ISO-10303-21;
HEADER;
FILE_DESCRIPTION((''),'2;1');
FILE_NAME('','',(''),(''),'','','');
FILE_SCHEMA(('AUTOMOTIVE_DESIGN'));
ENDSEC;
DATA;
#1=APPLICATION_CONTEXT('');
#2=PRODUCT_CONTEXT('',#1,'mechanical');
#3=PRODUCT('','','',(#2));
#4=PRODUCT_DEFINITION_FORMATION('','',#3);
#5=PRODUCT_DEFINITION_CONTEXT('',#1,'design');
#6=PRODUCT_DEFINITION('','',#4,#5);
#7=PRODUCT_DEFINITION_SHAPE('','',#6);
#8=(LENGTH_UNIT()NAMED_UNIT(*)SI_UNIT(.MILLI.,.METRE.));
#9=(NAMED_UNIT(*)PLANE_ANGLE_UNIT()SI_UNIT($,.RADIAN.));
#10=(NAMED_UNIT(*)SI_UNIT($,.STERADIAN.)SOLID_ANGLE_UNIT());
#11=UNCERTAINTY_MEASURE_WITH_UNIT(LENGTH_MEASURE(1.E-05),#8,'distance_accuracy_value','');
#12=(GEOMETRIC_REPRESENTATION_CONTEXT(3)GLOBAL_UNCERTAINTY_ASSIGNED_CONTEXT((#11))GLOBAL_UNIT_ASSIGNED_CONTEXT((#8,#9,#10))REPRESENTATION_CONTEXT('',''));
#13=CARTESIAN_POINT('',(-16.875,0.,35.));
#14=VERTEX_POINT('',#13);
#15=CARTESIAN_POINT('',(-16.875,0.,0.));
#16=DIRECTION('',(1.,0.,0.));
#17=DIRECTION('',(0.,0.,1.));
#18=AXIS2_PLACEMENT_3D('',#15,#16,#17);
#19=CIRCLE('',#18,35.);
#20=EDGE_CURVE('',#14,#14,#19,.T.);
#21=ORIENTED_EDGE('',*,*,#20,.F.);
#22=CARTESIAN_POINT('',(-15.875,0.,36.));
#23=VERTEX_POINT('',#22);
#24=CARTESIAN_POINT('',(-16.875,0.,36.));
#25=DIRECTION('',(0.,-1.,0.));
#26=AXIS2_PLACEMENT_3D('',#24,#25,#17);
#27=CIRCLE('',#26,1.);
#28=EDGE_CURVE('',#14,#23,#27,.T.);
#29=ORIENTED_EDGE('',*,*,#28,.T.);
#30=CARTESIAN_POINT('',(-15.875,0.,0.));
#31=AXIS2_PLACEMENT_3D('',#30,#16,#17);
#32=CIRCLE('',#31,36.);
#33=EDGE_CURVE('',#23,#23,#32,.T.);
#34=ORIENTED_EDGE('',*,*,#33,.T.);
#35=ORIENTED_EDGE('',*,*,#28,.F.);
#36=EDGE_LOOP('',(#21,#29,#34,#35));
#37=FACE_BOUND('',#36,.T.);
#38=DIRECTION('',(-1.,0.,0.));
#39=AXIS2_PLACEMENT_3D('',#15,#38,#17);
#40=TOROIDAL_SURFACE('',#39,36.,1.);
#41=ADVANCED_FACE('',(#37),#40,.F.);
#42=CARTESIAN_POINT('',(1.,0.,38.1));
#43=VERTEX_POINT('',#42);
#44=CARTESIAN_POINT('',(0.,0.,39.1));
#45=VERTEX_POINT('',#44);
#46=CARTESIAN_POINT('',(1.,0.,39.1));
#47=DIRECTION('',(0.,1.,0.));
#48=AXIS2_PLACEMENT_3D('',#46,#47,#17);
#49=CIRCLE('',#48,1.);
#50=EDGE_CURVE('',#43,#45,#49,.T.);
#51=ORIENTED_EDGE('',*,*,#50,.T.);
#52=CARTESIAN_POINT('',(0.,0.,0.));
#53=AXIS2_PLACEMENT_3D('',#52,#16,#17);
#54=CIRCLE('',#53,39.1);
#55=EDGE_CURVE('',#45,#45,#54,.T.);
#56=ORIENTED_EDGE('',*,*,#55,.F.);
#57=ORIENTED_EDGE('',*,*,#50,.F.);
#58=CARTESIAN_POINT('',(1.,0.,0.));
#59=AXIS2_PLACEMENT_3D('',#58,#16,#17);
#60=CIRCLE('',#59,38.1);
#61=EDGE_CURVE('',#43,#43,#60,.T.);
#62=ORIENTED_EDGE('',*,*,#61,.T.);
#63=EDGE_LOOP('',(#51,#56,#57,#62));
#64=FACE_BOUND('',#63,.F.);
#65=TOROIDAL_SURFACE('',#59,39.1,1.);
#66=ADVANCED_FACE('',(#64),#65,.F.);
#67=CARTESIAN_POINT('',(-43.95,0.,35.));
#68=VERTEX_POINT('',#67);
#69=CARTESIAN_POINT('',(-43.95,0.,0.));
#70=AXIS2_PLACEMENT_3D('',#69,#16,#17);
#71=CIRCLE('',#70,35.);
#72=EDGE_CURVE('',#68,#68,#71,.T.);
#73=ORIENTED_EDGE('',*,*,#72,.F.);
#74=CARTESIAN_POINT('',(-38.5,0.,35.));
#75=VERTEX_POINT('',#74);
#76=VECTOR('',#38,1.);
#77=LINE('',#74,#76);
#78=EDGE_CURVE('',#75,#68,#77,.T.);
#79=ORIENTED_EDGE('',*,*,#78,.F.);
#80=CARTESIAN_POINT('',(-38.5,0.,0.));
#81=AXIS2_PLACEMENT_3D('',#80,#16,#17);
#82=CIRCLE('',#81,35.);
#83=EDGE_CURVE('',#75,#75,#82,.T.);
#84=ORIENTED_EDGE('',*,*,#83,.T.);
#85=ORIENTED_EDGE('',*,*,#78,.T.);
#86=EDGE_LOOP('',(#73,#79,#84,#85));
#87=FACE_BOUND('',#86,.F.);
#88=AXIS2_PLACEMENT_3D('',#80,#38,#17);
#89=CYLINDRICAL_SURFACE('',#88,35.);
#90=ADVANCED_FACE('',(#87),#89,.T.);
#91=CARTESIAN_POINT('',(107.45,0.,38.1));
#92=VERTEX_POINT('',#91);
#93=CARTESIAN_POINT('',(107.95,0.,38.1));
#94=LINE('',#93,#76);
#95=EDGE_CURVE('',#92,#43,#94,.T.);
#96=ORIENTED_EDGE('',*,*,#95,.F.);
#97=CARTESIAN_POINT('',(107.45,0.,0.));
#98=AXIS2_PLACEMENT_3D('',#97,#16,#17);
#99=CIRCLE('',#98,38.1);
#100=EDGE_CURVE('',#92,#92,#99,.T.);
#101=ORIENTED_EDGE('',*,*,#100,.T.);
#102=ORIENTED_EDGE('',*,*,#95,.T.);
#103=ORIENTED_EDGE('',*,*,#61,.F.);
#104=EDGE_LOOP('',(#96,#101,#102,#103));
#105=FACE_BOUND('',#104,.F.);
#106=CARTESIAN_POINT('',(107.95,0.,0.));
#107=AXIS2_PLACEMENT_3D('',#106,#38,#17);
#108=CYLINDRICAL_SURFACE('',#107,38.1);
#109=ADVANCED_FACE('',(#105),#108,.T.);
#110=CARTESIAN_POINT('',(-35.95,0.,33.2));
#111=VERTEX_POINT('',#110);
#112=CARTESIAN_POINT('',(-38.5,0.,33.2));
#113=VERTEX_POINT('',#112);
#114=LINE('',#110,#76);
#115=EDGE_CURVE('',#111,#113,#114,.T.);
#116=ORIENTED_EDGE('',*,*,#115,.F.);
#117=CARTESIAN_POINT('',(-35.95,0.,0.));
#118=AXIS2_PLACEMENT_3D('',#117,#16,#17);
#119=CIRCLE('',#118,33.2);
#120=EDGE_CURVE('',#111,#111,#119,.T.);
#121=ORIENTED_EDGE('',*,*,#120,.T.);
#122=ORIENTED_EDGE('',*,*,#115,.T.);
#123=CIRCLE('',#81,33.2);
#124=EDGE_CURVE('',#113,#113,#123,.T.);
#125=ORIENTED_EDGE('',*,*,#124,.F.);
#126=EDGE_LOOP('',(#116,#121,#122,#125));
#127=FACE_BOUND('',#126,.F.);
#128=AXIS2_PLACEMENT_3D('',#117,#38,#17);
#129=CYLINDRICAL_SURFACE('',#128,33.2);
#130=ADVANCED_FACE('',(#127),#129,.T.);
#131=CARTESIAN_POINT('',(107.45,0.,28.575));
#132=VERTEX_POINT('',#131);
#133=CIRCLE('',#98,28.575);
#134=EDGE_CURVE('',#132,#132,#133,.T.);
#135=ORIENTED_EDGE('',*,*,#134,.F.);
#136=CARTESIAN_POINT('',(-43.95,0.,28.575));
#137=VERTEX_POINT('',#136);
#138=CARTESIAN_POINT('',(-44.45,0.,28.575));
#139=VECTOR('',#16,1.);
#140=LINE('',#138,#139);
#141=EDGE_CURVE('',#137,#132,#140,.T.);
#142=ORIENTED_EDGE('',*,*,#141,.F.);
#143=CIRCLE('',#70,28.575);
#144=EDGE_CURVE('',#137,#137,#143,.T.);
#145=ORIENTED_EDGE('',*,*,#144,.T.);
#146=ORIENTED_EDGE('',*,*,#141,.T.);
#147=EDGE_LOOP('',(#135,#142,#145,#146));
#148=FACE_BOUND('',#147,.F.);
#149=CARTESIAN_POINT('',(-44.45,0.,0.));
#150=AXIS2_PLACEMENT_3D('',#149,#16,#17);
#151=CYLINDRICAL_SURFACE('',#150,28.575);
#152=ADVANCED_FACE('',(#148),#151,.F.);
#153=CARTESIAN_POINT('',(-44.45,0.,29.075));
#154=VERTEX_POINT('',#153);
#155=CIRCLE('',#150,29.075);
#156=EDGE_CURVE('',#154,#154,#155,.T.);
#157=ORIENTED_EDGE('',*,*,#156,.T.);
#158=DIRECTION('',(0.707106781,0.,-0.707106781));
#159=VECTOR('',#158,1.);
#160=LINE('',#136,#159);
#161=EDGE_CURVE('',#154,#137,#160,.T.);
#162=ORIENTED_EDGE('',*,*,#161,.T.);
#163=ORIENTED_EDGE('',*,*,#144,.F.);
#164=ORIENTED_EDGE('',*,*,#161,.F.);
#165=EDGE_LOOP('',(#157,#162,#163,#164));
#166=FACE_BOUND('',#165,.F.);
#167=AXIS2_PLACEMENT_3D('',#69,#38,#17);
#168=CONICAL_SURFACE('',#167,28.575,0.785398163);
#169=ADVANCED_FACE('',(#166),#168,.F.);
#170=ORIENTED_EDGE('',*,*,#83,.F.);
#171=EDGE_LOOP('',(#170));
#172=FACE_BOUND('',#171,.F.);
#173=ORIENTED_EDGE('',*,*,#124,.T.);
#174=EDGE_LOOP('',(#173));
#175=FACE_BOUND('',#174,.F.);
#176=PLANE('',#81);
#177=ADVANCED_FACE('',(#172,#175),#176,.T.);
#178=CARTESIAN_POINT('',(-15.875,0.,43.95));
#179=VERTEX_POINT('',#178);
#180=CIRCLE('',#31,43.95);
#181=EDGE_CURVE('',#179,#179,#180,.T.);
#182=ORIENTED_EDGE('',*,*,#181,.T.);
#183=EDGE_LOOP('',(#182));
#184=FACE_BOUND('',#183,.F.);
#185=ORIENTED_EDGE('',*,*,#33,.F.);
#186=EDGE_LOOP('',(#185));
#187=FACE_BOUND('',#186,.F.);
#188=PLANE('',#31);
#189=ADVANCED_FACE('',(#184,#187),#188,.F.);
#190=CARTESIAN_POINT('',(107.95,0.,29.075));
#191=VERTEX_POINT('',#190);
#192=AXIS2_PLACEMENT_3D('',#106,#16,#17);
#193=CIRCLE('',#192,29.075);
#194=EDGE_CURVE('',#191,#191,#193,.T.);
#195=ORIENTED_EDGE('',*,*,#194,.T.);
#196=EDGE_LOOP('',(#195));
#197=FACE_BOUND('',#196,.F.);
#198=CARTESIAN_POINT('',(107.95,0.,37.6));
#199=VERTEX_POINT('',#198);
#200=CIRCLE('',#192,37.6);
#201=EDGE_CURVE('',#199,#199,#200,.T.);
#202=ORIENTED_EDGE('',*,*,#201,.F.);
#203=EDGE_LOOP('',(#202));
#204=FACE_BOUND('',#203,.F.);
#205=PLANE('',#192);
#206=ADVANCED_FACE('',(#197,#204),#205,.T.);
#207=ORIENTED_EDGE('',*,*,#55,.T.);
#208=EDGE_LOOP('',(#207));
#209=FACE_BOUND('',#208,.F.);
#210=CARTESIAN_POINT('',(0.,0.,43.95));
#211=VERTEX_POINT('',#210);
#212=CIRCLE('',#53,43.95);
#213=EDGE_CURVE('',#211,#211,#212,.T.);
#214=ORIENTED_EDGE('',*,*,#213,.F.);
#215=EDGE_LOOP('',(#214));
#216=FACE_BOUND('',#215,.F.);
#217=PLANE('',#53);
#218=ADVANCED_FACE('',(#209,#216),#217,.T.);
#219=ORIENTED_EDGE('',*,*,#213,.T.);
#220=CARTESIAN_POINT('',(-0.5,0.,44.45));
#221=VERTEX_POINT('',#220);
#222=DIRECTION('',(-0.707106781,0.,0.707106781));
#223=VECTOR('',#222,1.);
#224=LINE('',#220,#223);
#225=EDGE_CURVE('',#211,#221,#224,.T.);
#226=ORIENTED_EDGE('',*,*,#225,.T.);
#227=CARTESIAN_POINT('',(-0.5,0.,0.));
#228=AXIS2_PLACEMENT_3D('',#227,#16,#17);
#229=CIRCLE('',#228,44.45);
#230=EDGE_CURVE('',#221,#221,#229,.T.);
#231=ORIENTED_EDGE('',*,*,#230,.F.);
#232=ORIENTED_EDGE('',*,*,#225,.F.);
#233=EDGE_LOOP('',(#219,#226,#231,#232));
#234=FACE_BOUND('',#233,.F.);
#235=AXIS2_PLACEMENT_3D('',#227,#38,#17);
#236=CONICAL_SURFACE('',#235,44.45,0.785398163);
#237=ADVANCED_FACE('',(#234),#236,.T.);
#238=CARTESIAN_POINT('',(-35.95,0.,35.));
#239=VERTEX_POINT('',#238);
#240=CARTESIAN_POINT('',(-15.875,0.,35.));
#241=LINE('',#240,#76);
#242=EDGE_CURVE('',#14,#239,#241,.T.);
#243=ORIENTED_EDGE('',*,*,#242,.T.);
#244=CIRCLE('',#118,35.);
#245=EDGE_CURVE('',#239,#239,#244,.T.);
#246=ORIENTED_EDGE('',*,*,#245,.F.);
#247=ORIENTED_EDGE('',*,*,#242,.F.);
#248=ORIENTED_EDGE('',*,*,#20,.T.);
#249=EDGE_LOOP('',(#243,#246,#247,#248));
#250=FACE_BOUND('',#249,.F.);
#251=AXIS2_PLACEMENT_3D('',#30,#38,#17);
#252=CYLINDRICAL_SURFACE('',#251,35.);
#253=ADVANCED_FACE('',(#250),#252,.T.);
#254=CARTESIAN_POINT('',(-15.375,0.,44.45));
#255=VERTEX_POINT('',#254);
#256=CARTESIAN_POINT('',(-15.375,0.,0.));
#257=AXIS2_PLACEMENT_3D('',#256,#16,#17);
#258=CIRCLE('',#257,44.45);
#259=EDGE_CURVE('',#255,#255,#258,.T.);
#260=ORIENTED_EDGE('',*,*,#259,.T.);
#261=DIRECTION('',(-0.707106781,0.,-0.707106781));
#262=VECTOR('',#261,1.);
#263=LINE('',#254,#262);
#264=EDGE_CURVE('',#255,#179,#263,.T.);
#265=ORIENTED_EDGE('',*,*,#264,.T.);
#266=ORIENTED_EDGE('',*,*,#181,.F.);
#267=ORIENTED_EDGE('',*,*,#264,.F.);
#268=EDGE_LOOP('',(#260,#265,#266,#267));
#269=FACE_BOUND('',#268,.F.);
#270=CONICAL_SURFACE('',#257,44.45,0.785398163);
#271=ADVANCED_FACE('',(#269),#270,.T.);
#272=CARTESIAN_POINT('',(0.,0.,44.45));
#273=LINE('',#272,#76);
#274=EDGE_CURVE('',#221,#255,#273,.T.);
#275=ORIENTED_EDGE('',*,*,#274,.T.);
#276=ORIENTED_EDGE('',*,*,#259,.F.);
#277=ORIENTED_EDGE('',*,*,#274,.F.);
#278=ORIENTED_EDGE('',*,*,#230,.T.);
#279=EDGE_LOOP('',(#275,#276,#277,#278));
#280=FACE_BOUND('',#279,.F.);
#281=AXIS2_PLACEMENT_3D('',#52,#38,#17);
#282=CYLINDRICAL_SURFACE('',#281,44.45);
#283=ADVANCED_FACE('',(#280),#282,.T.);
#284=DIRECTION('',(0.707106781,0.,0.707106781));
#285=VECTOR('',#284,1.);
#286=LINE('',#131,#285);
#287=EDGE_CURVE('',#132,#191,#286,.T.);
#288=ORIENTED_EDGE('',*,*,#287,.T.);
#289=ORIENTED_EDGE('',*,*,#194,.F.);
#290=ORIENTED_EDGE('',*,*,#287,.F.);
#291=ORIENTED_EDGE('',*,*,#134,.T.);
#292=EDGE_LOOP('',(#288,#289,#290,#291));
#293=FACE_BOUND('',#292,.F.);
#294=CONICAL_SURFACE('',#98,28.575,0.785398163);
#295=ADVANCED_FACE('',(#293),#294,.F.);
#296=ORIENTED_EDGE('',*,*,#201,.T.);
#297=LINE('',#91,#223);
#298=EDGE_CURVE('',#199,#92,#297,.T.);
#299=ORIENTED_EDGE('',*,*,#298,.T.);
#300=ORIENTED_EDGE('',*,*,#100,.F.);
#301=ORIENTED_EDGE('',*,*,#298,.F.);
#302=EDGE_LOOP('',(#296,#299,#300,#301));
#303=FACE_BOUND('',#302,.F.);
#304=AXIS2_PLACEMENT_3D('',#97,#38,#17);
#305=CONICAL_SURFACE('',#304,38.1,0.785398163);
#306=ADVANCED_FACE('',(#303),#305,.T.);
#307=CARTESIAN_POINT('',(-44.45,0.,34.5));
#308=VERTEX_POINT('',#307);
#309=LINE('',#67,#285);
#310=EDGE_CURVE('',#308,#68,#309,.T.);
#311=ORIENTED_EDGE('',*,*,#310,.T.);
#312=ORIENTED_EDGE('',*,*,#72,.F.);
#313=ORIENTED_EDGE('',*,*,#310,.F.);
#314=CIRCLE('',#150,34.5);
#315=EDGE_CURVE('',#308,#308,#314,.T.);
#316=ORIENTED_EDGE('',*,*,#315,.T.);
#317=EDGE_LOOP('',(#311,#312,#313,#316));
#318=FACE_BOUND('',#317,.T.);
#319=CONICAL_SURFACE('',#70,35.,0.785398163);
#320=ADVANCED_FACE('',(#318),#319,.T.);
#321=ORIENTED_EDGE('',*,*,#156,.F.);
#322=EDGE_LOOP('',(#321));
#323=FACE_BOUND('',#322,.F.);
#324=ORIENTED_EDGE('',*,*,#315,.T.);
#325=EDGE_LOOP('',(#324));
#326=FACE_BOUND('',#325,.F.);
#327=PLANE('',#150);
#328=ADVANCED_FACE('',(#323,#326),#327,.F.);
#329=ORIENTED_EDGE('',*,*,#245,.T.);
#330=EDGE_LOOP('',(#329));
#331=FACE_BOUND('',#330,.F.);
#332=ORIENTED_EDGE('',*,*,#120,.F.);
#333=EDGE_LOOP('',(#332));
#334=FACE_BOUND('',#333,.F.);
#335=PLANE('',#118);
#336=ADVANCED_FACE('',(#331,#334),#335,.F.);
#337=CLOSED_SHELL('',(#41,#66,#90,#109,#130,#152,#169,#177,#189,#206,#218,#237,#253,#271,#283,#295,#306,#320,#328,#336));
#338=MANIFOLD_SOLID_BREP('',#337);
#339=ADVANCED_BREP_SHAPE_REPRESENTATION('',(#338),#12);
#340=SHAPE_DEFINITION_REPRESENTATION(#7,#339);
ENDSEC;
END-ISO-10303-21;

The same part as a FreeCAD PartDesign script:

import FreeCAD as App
import Part
import Sketcher
Q = App.Units.Quantity


def edges_at(feature, points):
    """Names of the edges that pass closest to the given points."""
    edges = feature.Shape.Edges
    near = lambda p: min(range(len(edges)), key=lambda i: edges[i].distToShape(Part.Vertex(*p))[0])
    return sorted({f"Edge{near(p) + 1}" for p in points})

doc = App.newDocument("Part")
body = doc.addObject("PartDesign::Body", "Body")

sketch1 = body.newObject("Sketcher::SketchObject", "Sketch")
sketch1.AttachmentSupport = (doc.getObject("XZ_Plane"), [""])
sketch1.MapMode = "FlatFace"
sketch1.addGeometry([
    Part.LineSegment(App.Vector(-44.5, 35, 0), App.Vector(-44.5, 28.6, 0)),
    Part.LineSegment(App.Vector(-44.5, 28.6, 0), App.Vector(108, 28.6, 0)),
    Part.LineSegment(App.Vector(108, 28.6, 0), App.Vector(108, 38.1, 0)),
    Part.LineSegment(App.Vector(108, 38.1, 0), App.Vector(0, 38.1, 0)),
    Part.LineSegment(App.Vector(0, 38.1, 0), App.Vector(0, 44.5, 0)),
    Part.LineSegment(App.Vector(0, 44.5, 0), App.Vector(-15.9, 44.5, 0)),
    Part.LineSegment(App.Vector(-15.9, 44.5, 0), App.Vector(-15.9, 35, 0)),
    Part.LineSegment(App.Vector(-15.9, 35, 0), App.Vector(-36, 35, 0)),
    Part.LineSegment(App.Vector(-36, 35, 0), App.Vector(-36, 33.2, 0)),
    Part.LineSegment(App.Vector(-36, 33.2, 0), App.Vector(-38.5, 33.2, 0)),
    Part.LineSegment(App.Vector(-38.5, 33.2, 0), App.Vector(-38.5, 35, 0)),
    Part.LineSegment(App.Vector(-38.5, 35, 0), App.Vector(-44.5, 35, 0)),
], False)
sketch1.addConstraint([
    Sketcher.Constraint("Coincident", 0, 2, 1, 1),
    Sketcher.Constraint("Coincident", 1, 2, 2, 1),
    Sketcher.Constraint("Coincident", 2, 2, 3, 1),
    Sketcher.Constraint("Coincident", 3, 2, 4, 1),
    Sketcher.Constraint("Coincident", 4, 2, 5, 1),
    Sketcher.Constraint("Coincident", 5, 2, 6, 1),
    Sketcher.Constraint("Coincident", 6, 2, 7, 1),
    Sketcher.Constraint("Coincident", 7, 2, 8, 1),
    Sketcher.Constraint("Coincident", 8, 2, 9, 1),
    Sketcher.Constraint("Coincident", 9, 2, 10, 1),
    Sketcher.Constraint("Coincident", 10, 2, 11, 1),
    Sketcher.Constraint("Coincident", 11, 2, 0, 1),
    Sketcher.Constraint("Vertical", 0),
    Sketcher.Constraint("Horizontal", 1),
    Sketcher.Constraint("Vertical", 2),
    Sketcher.Constraint("Horizontal", 3),
    Sketcher.Constraint("Vertical", 4),
    Sketcher.Constraint("Horizontal", 5),
    Sketcher.Constraint("Vertical", 6),
    Sketcher.Constraint("Horizontal", 7),
    Sketcher.Constraint("Vertical", 8),
    Sketcher.Constraint("Horizontal", 9),
    Sketcher.Constraint("Vertical", 10),
    Sketcher.Constraint("Horizontal", 11),
    Sketcher.Constraint("PointOnObject", 3, 2, -2),
    Sketcher.Constraint("Horizontal", 7, 2, 10, 2),
    Sketcher.Constraint("DistanceX", 1, 1, 1, 2, Q("6 in")),
    Sketcher.Constraint("DistanceX", 3, 2, 3, 1, Q("4.25 in")),
    Sketcher.Constraint("DistanceY", 4, 1, 4, 2, Q("0.25 in")),
    Sketcher.Constraint("DistanceY", -1, 1, 2, 2, Q("1.5 in")),
    Sketcher.Constraint("DistanceX", 5, 2, 5, 1, Q("0.625 in")),
    Sketcher.Constraint("DistanceY", 2, 1, 2, 2, Q("0.375 in")),
    Sketcher.Constraint("DistanceX", 7, 2, 7, 1, Q("20.075 mm")),
    Sketcher.Constraint("DistanceX", 9, 2, 9, 1, Q("2.55 mm")),
    Sketcher.Constraint("DistanceY", 0, 2, 0, 1, Q("6.425 mm")),
    Sketcher.Constraint("DistanceY", 8, 2, 8, 1, Q("1.8 mm")),
])
revolution = body.newObject("PartDesign::Revolution", "Revolution")
revolution.Profile = sketch1
revolution.ReferenceAxis = (sketch1, ["H_Axis"])
revolution.Angle = 360
doc.recompute()

chamfer = body.newObject("PartDesign::Chamfer", "Chamfer")
chamfer.Base = (revolution, edges_at(revolution, [
    (107.95, 0, -38.1),
    (107.95, 0, -28.575),
    (-44.45, 0, -28.575),
    (-44.45, 0, -35),
    (-15.875, 0, -44.45),
    (0, 0, -44.45),
]))
chamfer.Size = 0.5
doc.recompute()

fillet = body.newObject("PartDesign::Fillet", "Fillet")
fillet.Base = (chamfer, edges_at(chamfer, [(-15.875, 0, -35), (0, 0, -38.1)]))
fillet.Radius = 1

doc.recompute()
